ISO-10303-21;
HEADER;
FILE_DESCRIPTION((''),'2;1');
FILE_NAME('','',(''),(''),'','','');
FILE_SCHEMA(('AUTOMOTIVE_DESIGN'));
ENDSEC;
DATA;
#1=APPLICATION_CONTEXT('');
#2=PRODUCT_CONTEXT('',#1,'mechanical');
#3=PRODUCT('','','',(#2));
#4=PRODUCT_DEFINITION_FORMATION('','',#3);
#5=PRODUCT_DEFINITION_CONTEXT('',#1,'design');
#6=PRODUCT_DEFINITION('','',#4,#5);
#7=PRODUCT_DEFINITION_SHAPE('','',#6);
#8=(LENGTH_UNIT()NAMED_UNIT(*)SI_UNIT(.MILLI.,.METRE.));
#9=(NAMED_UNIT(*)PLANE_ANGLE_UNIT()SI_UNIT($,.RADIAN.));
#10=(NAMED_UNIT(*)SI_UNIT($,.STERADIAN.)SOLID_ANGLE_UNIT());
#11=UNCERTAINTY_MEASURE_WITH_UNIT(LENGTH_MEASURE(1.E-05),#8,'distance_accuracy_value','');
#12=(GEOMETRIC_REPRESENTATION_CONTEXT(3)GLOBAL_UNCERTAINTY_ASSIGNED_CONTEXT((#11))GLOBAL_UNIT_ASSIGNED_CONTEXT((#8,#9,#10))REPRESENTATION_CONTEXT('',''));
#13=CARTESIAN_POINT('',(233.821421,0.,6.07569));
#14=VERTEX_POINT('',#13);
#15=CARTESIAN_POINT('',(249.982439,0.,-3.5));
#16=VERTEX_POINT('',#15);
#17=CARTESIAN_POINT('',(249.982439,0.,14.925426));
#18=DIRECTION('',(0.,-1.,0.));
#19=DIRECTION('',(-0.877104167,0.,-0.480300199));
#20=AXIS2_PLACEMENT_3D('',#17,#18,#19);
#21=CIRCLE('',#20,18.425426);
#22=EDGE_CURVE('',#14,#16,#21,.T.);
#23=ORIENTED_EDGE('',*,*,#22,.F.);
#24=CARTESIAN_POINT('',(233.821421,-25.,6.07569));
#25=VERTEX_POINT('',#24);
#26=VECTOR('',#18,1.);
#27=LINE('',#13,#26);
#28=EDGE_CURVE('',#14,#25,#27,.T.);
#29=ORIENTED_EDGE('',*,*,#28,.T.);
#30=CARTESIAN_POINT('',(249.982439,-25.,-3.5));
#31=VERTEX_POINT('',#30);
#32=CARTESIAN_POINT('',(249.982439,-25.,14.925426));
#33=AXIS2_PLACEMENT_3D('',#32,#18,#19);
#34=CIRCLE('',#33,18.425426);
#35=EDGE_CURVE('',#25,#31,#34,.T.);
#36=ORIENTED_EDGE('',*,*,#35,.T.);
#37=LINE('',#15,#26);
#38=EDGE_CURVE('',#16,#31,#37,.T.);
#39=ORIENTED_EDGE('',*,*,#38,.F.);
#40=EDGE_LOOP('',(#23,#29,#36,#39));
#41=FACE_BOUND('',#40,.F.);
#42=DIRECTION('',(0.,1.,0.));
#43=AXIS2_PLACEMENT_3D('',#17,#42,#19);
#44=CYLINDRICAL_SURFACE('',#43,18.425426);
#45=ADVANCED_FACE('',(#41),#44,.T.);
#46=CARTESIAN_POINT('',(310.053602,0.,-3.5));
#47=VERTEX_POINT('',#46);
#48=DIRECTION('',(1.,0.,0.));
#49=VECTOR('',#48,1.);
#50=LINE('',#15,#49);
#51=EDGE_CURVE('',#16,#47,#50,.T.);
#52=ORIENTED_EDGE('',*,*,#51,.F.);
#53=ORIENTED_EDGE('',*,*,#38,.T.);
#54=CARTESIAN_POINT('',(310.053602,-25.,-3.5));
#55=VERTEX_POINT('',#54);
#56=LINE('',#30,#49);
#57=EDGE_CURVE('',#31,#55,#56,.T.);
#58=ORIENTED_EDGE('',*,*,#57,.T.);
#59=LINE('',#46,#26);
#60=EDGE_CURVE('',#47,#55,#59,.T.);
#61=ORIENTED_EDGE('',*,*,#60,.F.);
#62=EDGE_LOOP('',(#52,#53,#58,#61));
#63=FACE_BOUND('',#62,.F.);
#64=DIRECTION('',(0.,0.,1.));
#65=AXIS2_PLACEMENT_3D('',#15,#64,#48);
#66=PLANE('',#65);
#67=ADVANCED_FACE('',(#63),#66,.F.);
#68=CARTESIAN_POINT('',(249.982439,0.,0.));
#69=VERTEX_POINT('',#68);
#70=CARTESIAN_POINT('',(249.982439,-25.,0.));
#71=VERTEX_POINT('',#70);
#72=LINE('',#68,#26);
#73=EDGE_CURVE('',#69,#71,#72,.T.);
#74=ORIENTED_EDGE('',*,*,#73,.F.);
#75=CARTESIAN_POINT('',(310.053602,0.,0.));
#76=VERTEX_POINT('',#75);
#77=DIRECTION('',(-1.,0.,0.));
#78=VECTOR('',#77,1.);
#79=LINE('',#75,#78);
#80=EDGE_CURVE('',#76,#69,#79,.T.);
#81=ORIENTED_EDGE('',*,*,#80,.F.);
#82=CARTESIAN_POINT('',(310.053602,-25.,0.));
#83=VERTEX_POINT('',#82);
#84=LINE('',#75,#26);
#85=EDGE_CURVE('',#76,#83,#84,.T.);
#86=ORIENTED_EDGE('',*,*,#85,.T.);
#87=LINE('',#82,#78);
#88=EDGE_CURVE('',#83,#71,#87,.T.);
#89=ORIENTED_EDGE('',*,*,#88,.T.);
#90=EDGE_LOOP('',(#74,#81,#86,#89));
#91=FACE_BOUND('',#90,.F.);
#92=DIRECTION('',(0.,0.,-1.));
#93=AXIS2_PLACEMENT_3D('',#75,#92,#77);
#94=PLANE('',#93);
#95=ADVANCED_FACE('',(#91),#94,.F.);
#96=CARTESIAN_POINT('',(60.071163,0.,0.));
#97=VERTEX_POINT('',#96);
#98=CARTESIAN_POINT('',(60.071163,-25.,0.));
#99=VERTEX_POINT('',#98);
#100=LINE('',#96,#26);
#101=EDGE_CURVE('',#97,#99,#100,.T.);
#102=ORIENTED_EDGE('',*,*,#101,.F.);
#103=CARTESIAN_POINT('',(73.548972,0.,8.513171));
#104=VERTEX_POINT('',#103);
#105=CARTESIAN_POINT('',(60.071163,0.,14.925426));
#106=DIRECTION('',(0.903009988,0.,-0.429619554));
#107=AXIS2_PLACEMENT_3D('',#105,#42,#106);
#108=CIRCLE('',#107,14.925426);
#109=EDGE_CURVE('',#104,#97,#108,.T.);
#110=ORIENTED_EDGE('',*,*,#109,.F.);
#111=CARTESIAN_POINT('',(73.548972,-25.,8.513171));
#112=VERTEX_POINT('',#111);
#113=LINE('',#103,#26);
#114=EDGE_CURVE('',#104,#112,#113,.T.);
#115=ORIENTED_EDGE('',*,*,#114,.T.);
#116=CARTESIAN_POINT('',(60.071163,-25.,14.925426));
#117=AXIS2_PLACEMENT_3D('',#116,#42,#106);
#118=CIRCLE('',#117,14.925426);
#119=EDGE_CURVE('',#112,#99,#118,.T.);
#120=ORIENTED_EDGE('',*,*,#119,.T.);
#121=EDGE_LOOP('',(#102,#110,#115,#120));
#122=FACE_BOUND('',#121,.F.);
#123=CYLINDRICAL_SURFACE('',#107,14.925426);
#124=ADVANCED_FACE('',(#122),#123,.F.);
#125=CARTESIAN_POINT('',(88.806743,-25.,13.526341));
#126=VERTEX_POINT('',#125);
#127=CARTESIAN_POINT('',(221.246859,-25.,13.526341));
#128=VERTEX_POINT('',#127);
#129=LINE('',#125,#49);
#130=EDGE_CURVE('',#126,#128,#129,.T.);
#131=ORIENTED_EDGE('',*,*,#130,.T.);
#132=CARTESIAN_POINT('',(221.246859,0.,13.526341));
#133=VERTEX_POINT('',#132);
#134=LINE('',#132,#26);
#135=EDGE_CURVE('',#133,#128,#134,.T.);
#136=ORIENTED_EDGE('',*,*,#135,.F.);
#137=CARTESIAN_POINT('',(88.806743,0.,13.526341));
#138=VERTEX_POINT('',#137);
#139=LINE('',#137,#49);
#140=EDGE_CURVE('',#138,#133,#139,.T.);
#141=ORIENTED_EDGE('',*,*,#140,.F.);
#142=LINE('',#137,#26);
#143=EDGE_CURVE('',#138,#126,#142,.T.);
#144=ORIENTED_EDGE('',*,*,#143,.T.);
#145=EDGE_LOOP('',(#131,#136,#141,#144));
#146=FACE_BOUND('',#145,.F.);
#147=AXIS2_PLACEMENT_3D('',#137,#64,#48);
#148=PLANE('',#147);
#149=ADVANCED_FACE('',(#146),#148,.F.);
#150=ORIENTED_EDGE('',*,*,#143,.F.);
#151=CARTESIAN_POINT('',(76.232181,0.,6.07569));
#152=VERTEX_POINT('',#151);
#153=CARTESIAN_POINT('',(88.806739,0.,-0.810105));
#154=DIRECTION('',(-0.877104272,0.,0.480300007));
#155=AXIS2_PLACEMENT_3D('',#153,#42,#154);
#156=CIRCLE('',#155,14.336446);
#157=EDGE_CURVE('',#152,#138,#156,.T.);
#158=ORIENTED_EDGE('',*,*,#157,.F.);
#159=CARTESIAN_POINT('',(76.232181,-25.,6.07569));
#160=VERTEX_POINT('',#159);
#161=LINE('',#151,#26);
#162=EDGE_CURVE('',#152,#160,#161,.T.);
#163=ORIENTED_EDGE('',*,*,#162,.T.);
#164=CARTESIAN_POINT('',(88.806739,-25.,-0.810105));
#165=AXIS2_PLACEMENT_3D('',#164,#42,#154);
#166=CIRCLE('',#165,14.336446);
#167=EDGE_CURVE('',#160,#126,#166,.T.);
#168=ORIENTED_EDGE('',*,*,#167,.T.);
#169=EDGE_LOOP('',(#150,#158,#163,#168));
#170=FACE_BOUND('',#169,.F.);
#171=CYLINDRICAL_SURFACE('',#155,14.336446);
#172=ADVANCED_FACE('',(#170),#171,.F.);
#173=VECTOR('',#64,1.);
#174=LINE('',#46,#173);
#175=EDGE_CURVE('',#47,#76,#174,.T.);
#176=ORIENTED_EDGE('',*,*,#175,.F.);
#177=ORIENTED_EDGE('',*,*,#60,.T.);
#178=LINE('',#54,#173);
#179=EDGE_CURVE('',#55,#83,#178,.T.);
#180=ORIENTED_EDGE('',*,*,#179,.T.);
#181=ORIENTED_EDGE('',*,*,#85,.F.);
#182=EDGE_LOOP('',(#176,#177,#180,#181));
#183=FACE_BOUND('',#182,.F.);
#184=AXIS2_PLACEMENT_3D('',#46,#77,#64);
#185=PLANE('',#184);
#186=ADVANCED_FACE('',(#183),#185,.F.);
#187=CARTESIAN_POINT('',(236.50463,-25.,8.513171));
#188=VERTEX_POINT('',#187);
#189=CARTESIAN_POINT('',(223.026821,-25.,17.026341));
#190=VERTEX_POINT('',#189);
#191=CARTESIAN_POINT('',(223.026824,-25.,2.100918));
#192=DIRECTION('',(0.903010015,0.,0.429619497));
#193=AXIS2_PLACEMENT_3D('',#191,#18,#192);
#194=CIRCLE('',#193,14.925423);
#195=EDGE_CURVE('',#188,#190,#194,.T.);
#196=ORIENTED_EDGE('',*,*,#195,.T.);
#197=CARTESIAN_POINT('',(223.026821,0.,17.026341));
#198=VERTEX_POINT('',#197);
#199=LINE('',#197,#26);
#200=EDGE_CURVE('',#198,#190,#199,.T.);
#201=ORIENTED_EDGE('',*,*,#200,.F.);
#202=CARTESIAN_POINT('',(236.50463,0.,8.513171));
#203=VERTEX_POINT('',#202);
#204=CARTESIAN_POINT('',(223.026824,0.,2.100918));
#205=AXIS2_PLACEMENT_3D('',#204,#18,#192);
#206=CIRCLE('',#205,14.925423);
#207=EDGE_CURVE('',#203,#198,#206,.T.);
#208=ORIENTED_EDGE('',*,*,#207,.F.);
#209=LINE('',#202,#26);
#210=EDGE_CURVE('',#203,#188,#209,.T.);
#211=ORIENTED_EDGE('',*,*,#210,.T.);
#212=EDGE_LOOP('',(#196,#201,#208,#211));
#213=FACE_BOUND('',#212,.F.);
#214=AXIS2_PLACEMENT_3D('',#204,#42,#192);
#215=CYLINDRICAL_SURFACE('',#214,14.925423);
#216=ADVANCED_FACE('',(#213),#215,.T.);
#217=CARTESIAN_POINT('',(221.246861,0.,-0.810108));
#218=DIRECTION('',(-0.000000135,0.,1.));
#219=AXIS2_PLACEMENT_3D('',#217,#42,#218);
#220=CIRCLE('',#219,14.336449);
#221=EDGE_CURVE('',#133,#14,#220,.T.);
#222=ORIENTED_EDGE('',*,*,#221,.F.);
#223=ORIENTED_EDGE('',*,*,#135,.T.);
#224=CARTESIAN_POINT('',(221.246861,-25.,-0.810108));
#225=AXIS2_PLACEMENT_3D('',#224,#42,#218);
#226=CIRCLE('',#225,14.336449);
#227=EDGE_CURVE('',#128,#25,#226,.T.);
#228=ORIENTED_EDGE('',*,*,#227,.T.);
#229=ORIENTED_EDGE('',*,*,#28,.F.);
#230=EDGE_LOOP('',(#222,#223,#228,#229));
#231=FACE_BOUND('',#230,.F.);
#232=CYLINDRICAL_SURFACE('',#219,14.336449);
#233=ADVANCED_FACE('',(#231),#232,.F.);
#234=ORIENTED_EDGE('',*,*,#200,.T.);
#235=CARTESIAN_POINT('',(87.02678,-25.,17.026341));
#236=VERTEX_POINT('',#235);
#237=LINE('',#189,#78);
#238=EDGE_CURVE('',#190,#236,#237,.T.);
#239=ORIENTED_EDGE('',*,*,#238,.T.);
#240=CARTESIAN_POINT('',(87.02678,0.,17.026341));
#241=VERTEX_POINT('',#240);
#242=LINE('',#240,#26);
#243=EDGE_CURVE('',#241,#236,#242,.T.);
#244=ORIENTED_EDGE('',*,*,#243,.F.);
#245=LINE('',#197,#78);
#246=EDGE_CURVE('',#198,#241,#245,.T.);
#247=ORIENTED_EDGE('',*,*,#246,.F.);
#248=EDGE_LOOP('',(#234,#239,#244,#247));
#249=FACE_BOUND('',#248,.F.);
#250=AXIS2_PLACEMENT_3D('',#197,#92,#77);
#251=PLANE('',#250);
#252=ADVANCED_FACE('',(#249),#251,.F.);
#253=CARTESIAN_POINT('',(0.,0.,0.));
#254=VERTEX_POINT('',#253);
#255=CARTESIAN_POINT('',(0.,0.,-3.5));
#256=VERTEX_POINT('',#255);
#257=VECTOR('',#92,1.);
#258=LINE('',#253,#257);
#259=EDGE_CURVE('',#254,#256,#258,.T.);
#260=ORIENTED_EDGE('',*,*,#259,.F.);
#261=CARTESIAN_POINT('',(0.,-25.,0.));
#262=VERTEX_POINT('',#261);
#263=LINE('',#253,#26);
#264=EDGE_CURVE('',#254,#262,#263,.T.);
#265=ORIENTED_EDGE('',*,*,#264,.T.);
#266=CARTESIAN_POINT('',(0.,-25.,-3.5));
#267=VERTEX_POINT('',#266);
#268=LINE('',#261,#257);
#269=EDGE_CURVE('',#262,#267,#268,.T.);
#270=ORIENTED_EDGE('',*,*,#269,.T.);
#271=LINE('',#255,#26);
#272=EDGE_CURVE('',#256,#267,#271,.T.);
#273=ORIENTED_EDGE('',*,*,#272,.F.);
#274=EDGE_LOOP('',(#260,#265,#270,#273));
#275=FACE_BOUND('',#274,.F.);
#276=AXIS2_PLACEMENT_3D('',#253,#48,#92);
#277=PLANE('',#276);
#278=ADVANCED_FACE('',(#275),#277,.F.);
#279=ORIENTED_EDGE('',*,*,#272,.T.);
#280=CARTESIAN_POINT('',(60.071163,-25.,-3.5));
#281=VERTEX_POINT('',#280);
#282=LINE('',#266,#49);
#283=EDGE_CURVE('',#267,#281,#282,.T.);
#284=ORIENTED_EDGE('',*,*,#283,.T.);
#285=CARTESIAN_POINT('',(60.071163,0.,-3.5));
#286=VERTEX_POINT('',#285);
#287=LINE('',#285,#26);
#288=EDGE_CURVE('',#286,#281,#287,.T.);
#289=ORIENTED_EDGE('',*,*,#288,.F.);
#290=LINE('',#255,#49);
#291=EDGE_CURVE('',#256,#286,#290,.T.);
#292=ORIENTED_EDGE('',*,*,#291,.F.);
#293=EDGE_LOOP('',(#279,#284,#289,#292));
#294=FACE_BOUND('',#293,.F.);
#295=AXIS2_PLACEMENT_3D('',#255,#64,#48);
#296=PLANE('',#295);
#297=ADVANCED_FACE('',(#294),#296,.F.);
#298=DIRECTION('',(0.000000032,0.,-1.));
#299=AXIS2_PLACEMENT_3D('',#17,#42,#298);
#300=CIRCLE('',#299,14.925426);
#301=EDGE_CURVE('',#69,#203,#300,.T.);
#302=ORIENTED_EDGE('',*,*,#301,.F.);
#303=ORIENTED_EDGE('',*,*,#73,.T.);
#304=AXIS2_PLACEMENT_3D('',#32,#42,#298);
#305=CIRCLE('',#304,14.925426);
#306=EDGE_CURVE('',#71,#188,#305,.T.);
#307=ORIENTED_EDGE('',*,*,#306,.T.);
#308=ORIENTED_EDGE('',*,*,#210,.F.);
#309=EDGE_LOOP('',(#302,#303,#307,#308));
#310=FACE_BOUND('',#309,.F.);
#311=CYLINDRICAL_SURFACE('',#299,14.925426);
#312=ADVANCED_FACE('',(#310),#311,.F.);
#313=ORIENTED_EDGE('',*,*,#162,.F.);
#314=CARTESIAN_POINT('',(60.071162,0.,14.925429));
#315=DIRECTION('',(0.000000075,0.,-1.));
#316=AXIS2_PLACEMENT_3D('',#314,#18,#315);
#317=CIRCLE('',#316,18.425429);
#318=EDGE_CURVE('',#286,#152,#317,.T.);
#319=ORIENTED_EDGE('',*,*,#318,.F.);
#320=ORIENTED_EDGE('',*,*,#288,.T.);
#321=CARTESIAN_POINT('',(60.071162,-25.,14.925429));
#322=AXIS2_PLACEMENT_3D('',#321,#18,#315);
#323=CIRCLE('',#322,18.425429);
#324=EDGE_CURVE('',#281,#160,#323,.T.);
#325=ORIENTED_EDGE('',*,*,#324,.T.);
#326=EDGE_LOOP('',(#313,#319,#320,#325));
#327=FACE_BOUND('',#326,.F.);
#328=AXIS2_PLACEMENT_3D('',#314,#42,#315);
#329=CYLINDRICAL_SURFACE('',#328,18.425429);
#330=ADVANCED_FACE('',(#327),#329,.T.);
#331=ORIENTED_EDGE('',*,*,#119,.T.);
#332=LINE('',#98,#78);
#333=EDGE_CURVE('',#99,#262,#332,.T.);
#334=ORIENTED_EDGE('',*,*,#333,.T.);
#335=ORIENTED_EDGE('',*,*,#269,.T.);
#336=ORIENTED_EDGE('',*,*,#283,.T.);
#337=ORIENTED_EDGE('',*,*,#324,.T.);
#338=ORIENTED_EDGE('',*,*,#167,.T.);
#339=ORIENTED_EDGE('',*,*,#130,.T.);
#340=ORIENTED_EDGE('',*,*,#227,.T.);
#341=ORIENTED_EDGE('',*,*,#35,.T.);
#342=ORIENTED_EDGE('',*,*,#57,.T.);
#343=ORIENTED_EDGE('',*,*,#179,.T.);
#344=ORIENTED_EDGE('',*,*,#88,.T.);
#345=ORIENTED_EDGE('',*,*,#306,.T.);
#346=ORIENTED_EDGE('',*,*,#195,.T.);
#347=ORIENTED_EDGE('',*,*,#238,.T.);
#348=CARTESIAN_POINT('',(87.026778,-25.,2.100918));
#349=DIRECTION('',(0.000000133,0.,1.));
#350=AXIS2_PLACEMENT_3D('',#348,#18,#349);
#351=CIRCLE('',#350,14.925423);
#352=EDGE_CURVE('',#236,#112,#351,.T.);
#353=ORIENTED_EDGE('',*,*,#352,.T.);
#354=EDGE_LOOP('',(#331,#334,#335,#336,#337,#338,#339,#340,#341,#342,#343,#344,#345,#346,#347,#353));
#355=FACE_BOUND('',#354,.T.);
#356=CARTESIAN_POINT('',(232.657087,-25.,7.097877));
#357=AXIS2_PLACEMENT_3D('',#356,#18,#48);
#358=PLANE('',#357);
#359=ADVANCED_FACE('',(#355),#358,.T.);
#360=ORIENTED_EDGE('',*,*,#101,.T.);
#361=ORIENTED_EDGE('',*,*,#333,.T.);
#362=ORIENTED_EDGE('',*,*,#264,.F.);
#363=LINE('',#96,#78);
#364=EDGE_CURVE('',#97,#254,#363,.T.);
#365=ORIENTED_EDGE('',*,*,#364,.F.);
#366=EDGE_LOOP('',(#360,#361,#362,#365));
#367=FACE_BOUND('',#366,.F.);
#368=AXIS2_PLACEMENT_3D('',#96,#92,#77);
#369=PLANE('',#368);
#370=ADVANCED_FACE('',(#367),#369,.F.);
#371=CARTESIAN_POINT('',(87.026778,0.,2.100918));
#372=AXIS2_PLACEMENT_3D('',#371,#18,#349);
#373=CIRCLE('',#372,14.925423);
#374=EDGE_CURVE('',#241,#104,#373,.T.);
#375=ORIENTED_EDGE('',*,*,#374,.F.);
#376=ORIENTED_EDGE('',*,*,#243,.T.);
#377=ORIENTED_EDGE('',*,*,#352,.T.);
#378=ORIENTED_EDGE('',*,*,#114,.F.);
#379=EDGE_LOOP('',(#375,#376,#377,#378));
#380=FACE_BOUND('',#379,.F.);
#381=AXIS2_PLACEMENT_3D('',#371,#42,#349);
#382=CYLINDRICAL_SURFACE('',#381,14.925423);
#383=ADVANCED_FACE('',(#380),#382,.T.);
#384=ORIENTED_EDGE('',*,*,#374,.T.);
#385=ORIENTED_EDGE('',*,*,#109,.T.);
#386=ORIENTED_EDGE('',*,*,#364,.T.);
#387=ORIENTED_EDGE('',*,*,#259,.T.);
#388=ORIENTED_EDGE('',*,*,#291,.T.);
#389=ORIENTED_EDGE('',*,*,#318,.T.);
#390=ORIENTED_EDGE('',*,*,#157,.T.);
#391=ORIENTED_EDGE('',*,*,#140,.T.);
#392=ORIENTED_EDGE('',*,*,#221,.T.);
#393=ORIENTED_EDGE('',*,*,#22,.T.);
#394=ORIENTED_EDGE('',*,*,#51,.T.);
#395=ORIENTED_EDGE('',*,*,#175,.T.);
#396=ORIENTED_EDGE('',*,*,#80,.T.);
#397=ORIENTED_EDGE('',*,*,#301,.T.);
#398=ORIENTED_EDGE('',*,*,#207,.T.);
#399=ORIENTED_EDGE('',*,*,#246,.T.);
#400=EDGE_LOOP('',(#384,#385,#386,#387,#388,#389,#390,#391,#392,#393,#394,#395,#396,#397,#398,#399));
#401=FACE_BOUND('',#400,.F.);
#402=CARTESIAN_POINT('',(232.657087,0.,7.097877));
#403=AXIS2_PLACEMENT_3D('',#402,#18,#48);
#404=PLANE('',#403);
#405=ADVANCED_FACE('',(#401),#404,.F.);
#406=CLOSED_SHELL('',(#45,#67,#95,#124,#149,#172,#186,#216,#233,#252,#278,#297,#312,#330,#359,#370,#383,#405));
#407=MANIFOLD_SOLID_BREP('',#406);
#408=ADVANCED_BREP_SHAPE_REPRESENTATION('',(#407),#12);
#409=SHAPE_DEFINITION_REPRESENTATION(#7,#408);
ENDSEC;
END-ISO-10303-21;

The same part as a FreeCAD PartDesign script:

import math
import FreeCAD as App
import Part
import Sketcher

V = App.Vector

doc = App.newDocument("Part")
body = doc.addObject("PartDesign::Body", "Body")

# Sketch on XZ plane
sketch1 = doc.addObject("Sketcher::SketchObject", "Sketch")
body.addObject(sketch1)
sketch1.AttachmentSupport = (doc.XZ_Plane, [""])
sketch1.MapMode = "FlatFace"
sketch1.addGeometry([
    Part.LineSegment(V(223.026821, 17.026341, 0), V(87.02678, 17.026341, 0)),  # 0
    Part.ArcOfCircle(Part.Circle(V(87.026778, 2.100918, 0), V(0, 0, 1), 14.925423), math.radians(89.999992), math.radians(154.556585)),  # 1
    Part.ArcOfCircle(Part.Circle(V(60.071163, 14.925426, 0), V(0, 0, 1), 14.925426), math.radians(-90.000002), math.radians(-25.443418)),  # 2
    Part.LineSegment(V(60.071163, 0, 0), V(0, 0, 0)),  # 3
    Part.LineSegment(V(0, 0, 0), V(0, -3.5, 0)),  # 4
    Part.LineSegment(V(0, -3.5, 0), V(60.071163, -3.5, 0)),  # 5
    Part.ArcOfCircle(Part.Circle(V(60.071162, 14.925429, 0), V(0, 0, 1), 18.425429), math.radians(-89.999996), math.radians(-28.705016)),  # 6
    Part.ArcOfCircle(Part.Circle(V(88.806739, -0.810105, 0), V(0, 0, 1), 14.336446), math.radians(89.999985), math.radians(151.295002)),  # 7
    Part.LineSegment(V(88.806743, 13.526341, 0), V(221.246859, 13.526341, 0)),  # 8
    Part.ArcOfCircle(Part.Circle(V(221.246861, -0.810108, 0), V(0, 0, 1), 14.336449), math.radians(28.705005), math.radians(90.000008)),  # 9
    Part.ArcOfCircle(Part.Circle(V(249.982439, 14.925426, 0), V(0, 0, 1), 18.425426), math.radians(-151.29499), math.radians(-89.999999)),  # 10
    Part.LineSegment(V(249.982439, -3.5, 0), V(310.053602, -3.5, 0)),  # 11
    Part.LineSegment(V(310.053602, -3.5, 0), V(310.053602, 0, 0)),  # 12
    Part.LineSegment(V(310.053602, 0, 0), V(249.982439, 0, 0)),  # 13
    Part.ArcOfCircle(Part.Circle(V(249.982439, 14.925426, 0), V(0, 0, 1), 14.925426), math.radians(-154.556582), math.radians(-89.999998)),  # 14
    Part.ArcOfCircle(Part.Circle(V(223.026824, 2.100918, 0), V(0, 0, 1), 14.925423), math.radians(25.443415), math.radians(90.000011)),  # 15
], False)
sketch1.addConstraint([
    Sketcher.Constraint("Tangent", 0, 2, 1, 1),
    Sketcher.Constraint("Tangent", 1, 2, 2, 2),
    Sketcher.Constraint("Tangent", 2, 1, 3, 1),
    Sketcher.Constraint("Coincident", 3, 2, 4, 1),
    Sketcher.Constraint("Coincident", 4, 2, 5, 1),
    Sketcher.Constraint("Tangent", 5, 2, 6, 1),
    Sketcher.Constraint("Tangent", 6, 2, 7, 2),
    Sketcher.Constraint("Tangent", 7, 1, 8, 1),
    Sketcher.Constraint("Tangent", 8, 2, 9, 2),
    Sketcher.Constraint("Tangent", 9, 1, 10, 1),
    Sketcher.Constraint("Tangent", 10, 2, 11, 1),
    Sketcher.Constraint("Coincident", 11, 2, 12, 1),
    Sketcher.Constraint("Coincident", 12, 2, 13, 1),
    Sketcher.Constraint("Tangent", 13, 2, 14, 2),
    Sketcher.Constraint("Tangent", 14, 1, 15, 1),
    Sketcher.Constraint("Tangent", 15, 2, 0, 1),
    Sketcher.Constraint("Horizontal", 0),
    Sketcher.Constraint("Horizontal", 3),
    Sketcher.Constraint("Vertical", 4),
    Sketcher.Constraint("Horizontal", 5),
    Sketcher.Constraint("Horizontal", 8),
    Sketcher.Constraint("Horizontal", 11),
    Sketcher.Constraint("Vertical", 12),
    Sketcher.Constraint("Horizontal", 13),
    Sketcher.Constraint("Coincident", 3, 2, -1, 1),
    Sketcher.Constraint("Coincident", 6, 3, 2, 3),
    Sketcher.Constraint("Coincident", 14, 3, 10, 3),
    Sketcher.Constraint("Equal", 2, 14),
    Sketcher.Constraint("Equal", 1, 15),
    Sketcher.Constraint("PointOnObject", 12, 2, -1),
    Sketcher.Constraint("Horizontal", 6, 2, 9, 1),
    Sketcher.Constraint("Horizontal", 5, 2, 10, 2),
    Sketcher.Constraint("Equal", 5, 11),
    Sketcher.Constraint("DistanceY", 4, 2, 4, 1, 3.5),
    Sketcher.Constraint("DistanceY", 7, 1, 0, 2, 3.5),
    Sketcher.Constraint("Radius", 6, 18.425429),
    Sketcher.Constraint("Radius", 9, 14.336449),
    Sketcher.Constraint("Radius", 1, 14.925423),
    Sketcher.Constraint("DistanceX", 0, 2, 0, 1, 136.000041),
    Sketcher.Constraint("DistanceX", -1, 1, 11, 2, 310.053602),
    Sketcher.Constraint("DistanceX", 6, 3, 9, 3, 161.175699),
])
pad1 = doc.addObject("PartDesign::Pad", "Pad")
body.addObject(pad1)
pad1.Profile = sketch1
pad1.Length = 25

doc.recompute()
